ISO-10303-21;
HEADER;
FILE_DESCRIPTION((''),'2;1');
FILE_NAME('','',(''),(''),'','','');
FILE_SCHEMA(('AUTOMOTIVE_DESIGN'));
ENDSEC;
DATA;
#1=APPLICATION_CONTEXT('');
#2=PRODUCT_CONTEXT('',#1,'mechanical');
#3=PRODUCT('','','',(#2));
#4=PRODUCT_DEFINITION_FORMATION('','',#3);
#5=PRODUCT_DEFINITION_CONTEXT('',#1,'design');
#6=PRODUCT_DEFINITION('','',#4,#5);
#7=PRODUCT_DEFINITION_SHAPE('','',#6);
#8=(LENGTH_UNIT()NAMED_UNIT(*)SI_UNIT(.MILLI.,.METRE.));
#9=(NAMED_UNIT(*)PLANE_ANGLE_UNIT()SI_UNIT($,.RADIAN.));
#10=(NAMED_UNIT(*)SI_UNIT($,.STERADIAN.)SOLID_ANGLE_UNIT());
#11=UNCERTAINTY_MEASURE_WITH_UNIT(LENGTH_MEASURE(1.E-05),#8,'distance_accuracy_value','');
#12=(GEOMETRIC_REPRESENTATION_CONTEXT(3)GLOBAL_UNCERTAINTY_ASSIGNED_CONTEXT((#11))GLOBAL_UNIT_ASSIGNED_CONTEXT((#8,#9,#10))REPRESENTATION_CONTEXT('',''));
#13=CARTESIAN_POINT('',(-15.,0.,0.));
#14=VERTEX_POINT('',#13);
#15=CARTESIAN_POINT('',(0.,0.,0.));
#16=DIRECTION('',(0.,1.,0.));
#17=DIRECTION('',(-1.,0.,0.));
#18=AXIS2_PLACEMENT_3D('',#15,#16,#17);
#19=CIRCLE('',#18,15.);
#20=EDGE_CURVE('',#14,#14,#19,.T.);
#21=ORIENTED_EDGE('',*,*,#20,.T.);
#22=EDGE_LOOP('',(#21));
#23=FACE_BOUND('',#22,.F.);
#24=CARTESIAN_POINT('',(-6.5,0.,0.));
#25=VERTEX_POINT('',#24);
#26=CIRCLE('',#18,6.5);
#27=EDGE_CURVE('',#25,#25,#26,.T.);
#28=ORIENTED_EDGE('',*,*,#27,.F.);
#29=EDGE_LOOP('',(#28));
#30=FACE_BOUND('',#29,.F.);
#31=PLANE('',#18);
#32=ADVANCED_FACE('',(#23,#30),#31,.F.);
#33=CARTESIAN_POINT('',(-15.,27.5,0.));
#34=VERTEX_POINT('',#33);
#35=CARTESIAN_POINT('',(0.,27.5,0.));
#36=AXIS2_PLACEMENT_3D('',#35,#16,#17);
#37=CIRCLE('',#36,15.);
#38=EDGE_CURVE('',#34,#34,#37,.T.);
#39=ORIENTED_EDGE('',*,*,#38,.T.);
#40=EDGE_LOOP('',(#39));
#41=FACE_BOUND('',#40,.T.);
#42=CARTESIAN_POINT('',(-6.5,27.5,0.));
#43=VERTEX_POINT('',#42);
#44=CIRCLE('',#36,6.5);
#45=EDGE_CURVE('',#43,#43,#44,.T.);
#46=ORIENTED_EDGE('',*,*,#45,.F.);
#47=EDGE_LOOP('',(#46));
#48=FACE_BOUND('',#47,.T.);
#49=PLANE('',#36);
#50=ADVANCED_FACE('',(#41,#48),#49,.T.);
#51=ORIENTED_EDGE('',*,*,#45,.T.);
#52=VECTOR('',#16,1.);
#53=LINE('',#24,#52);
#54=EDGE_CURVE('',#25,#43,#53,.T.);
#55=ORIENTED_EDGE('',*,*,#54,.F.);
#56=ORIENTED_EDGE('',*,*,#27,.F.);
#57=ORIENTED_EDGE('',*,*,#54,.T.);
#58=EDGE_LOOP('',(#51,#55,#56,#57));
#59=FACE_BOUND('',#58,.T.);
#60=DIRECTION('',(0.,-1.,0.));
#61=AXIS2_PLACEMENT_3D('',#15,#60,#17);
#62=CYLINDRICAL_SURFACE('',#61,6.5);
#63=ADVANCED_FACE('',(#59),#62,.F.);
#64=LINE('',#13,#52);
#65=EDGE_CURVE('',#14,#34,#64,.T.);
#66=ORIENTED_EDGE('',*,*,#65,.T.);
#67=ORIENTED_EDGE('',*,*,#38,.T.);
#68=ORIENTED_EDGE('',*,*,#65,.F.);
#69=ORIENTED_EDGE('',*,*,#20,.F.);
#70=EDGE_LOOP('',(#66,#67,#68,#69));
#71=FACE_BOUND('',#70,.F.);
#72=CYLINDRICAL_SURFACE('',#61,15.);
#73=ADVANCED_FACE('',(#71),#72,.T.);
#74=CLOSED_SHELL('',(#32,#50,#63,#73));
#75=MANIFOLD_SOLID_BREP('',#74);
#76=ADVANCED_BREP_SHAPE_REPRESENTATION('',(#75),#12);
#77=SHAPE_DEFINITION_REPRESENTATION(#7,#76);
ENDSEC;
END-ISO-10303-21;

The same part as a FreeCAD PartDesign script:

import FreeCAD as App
import Part
import Sketcher

V = App.Vector
Q = App.Units.Quantity

doc = App.newDocument("Part")
body = doc.addObject("PartDesign::Body", "Body")

sketch1 = doc.addObject("Sketcher::SketchObject", "Sketch")
body.addObject(sketch1)
sketch1.AttachmentSupport = (doc.XZ_Plane, [""])
sketch1.MapMode = "FlatFace"
sketch1.addGeometry([
    Part.Circle(V(0, 0, 0), V(0, 0, 1), 15),
    Part.Circle(V(0, 0, 0), V(0, 0, 1), 6),
], False)
sketch1.addConstraint([
    Sketcher.Constraint("Coincident", 0, 3, -1, 1),
    Sketcher.Constraint("Coincident", 1, 3, -1, 1),
    Sketcher.Constraint("Diameter", 0, Q("30 mm")),
    Sketcher.Constraint("Diameter", 1, Q("13 mm")),
])
pad1 = doc.addObject("PartDesign::Pad", "Pad")
body.addObject(pad1)
pad1.Profile = sketch1
pad1.Length = 27.5
pad1.Reversed = True

doc.recompute()
